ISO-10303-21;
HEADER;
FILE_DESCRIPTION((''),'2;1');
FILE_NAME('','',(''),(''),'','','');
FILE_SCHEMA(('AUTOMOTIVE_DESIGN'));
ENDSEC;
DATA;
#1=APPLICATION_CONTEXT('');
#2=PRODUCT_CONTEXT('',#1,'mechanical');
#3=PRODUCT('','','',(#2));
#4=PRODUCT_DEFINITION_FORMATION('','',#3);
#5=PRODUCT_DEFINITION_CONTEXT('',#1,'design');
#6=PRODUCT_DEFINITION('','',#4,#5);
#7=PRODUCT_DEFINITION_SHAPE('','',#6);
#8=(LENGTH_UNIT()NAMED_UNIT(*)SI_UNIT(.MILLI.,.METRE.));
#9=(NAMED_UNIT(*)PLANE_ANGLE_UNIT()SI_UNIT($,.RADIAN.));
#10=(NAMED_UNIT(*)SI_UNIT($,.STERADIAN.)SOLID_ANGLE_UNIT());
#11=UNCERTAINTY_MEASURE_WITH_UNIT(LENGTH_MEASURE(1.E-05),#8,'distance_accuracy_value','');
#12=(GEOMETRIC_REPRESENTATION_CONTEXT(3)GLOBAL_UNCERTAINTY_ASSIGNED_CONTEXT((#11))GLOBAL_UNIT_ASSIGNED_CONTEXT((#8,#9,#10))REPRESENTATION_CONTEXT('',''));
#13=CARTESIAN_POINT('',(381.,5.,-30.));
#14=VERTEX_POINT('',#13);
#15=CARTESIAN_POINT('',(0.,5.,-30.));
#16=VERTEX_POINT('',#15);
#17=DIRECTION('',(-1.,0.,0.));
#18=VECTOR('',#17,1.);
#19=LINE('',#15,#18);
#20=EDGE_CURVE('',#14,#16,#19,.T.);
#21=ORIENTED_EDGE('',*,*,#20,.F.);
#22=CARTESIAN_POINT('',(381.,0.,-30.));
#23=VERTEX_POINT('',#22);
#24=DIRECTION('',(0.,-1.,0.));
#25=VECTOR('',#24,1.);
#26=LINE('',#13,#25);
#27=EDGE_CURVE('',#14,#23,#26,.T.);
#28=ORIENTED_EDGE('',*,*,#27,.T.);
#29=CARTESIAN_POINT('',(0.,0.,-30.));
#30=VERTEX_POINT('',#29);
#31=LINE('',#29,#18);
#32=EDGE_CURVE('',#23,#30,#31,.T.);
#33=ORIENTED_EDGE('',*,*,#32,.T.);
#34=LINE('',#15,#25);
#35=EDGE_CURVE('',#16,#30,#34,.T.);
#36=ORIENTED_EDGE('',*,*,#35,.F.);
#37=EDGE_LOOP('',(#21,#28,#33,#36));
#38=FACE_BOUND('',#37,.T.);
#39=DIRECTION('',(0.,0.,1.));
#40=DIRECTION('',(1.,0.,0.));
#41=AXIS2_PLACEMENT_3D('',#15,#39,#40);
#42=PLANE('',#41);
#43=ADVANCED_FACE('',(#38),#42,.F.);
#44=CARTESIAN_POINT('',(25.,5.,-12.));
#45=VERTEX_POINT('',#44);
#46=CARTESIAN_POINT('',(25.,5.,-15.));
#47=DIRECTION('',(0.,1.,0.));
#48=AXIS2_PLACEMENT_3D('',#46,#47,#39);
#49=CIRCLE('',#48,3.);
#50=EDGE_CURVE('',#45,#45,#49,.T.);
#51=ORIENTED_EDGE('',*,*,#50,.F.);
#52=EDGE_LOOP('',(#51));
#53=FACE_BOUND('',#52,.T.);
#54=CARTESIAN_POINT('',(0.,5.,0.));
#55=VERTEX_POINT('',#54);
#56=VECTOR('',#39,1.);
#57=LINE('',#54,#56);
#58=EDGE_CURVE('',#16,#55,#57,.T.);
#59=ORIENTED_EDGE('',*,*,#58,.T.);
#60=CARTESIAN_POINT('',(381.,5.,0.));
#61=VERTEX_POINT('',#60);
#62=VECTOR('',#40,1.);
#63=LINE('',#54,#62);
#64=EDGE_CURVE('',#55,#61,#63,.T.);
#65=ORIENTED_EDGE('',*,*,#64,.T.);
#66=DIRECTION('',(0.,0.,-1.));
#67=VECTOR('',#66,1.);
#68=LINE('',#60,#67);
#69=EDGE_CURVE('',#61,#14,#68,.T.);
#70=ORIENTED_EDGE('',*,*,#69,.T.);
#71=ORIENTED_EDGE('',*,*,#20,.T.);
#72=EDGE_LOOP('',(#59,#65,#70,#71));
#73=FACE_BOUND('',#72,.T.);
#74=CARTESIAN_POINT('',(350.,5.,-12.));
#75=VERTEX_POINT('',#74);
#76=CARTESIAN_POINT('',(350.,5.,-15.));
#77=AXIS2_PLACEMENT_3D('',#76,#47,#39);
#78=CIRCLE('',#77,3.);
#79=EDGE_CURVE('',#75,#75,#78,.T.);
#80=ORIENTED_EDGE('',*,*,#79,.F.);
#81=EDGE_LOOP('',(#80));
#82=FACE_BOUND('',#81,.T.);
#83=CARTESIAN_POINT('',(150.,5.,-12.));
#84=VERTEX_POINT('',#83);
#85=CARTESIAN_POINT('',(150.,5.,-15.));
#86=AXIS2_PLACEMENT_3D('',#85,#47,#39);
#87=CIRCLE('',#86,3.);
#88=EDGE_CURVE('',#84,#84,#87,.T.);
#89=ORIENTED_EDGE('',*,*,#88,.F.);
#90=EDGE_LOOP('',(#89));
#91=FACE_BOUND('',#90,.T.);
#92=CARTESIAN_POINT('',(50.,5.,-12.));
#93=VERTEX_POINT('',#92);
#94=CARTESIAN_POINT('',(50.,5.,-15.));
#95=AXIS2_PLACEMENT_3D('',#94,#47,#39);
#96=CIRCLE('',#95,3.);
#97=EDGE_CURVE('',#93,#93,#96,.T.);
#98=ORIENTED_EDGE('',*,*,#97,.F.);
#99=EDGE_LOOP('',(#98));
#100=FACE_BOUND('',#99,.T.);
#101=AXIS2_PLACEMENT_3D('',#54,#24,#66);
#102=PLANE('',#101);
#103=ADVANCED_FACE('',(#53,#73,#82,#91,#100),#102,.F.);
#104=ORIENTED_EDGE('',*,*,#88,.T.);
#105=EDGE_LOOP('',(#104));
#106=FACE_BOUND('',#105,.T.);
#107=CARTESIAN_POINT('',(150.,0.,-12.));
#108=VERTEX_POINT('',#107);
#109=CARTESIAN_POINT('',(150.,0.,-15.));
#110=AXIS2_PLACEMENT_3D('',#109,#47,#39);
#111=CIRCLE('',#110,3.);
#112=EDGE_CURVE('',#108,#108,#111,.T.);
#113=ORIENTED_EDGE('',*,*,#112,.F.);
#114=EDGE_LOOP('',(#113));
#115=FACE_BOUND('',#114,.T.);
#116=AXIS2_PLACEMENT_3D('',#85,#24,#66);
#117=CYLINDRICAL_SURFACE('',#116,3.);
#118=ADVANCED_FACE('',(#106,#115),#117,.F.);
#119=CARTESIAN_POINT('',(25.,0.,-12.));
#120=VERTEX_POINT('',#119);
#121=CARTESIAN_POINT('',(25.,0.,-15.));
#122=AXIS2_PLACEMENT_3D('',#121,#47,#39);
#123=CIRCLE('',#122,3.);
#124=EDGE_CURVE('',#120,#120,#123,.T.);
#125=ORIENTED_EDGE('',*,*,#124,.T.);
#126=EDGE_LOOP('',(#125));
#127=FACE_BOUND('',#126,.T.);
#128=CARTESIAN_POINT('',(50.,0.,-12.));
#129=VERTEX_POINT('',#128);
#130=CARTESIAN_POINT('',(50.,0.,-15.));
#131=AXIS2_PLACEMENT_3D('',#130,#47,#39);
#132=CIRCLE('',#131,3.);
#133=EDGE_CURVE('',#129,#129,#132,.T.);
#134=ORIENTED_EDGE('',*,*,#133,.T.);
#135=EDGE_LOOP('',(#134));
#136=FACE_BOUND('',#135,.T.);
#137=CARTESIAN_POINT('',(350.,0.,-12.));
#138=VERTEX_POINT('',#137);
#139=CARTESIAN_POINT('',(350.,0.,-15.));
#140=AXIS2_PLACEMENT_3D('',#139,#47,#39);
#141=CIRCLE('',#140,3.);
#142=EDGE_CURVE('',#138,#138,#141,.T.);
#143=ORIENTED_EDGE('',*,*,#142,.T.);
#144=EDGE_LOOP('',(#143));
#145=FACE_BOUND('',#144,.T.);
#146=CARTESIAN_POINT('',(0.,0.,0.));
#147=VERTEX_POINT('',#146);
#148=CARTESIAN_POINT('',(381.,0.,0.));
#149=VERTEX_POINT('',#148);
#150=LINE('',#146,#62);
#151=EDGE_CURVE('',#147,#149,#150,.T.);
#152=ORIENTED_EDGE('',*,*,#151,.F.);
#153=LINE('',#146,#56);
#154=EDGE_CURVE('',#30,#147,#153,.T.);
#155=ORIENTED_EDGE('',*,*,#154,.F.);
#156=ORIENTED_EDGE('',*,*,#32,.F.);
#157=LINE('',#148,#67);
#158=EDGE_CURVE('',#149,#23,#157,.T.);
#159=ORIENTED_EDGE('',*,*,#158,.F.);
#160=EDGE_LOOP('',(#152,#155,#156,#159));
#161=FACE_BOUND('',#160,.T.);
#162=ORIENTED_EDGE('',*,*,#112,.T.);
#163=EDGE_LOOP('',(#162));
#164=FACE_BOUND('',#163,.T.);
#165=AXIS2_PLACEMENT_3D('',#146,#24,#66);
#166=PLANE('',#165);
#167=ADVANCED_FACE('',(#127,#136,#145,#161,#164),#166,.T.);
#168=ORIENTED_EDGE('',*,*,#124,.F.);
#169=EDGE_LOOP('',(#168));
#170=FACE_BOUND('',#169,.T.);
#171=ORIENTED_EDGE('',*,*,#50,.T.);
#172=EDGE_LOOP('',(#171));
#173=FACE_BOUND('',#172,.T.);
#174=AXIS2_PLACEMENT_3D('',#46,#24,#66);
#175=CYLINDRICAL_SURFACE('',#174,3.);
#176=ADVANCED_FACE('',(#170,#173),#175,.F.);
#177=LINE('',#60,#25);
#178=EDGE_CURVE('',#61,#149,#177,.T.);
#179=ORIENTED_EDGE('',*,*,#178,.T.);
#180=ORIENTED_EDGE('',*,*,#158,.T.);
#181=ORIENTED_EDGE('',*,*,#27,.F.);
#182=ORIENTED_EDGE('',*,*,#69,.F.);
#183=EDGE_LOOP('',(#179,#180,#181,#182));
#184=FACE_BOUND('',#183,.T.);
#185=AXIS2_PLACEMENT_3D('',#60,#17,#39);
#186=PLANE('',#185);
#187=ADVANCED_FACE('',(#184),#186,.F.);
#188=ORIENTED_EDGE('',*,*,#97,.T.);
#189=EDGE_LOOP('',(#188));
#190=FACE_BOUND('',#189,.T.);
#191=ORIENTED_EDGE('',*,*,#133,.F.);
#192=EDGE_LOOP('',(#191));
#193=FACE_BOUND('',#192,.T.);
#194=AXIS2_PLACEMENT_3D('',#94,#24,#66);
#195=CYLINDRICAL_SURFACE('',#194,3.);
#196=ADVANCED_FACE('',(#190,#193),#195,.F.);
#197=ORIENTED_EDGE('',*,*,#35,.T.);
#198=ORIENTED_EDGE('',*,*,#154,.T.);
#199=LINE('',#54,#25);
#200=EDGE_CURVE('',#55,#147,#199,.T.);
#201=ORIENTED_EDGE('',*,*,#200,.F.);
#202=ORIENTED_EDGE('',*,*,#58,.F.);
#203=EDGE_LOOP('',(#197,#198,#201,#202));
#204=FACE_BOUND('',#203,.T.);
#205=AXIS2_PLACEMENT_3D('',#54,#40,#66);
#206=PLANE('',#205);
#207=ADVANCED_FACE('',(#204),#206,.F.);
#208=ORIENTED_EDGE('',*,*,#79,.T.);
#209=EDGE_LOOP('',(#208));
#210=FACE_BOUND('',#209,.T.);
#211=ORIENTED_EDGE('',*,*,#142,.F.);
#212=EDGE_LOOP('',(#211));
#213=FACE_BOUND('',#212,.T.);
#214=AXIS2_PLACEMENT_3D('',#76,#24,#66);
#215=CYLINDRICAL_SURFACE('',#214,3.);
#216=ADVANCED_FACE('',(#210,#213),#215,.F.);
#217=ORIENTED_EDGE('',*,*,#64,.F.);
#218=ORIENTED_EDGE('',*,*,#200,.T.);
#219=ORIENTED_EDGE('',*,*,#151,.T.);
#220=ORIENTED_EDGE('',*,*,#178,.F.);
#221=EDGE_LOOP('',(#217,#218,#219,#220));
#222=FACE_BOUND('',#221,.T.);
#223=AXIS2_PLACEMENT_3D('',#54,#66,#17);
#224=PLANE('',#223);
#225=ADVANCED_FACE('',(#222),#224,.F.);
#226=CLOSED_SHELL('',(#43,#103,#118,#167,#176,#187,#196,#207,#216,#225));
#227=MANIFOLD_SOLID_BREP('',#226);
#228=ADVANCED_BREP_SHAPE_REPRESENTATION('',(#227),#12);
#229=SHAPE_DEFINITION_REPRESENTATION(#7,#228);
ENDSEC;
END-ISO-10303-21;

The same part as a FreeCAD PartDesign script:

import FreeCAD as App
import Part
import Sketcher

doc = App.newDocument("Part")
params = doc.addObject("Spreadsheet::Sheet", "Params")
for row, (alias, value) in enumerate([
    ("sketch1_diameter", "6 mm"),
    ("sketch1_width", "381 mm"),
    ("sketch1_height", "30 mm"),
    ("pad1_length", "5 mm"),
], start=1):
    params.set(f"A{row}", alias)
    params.set(f"B{row}", "=" + value)
    params.setAlias(f"B{row}", alias)

body = doc.addObject("PartDesign::Body", "Body")

# Sketch on XZ plane
sketch1 = body.newObject("Sketcher::SketchObject", "Sketch")
sketch1.AttachmentSupport = (doc.getObject("XZ_Plane"), [""])
sketch1.MapMode = "FlatFace"
sketch1.addGeometry([
    Part.LineSegment(App.Vector(0, -30, 0), App.Vector(0, 0, 0)),  # 0
    Part.LineSegment(App.Vector(0, 0, 0), App.Vector(381, 0, 0)),  # 1
    Part.LineSegment(App.Vector(381, 0, 0), App.Vector(381, -30, 0)),  # 2
    Part.LineSegment(App.Vector(381, -30, 0), App.Vector(0, -30, 0)),  # 3
    Part.Circle(App.Vector(25, -15, 0), App.Vector(0, 0, 1), 3),  # 4
    Part.Circle(App.Vector(50, -15, 0), App.Vector(0, 0, 1), 3),  # 5
    Part.Circle(App.Vector(150, -15, 0), App.Vector(0, 0, 1), 3),  # 6
    Part.Circle(App.Vector(350, -15, 0), App.Vector(0, 0, 1), 3),  # 7
], False)
sketch1.addConstraint([
    Sketcher.Constraint("Coincident", 0, 2, 1, 1),
    Sketcher.Constraint("Coincident", 1, 2, 2, 1),
    Sketcher.Constraint("Coincident", 2, 2, 3, 1),
    Sketcher.Constraint("Coincident", 3, 2, 0, 1),
    Sketcher.Constraint("Vertical", 0),
    Sketcher.Constraint("Horizontal", 1),
    Sketcher.Constraint("Vertical", 2),
    Sketcher.Constraint("Horizontal", 3),
    Sketcher.Constraint("Coincident", 0, 2, -1, 1),
    Sketcher.Constraint("Equal", 4, 5),
    Sketcher.Constraint("Equal", 5, 6),
    Sketcher.Constraint("Equal", 6, 7),
    Sketcher.Constraint("Horizontal", 4, 3, 5, 3),
    Sketcher.Constraint("Horizontal", 5, 3, 6, 3),
    Sketcher.Constraint("Horizontal", 6, 3, 7, 3),
    Sketcher.Constraint("Diameter", 4, 6.0),
    Sketcher.Constraint("DistanceX", 1, 1, 1, 2, 381.0),
    Sketcher.Constraint("DistanceY", 0, 1, 0, 2, 30.0),
    Sketcher.Constraint("DistanceX", -1, 1, 4, 3, 25.0),
    Sketcher.Constraint("DistanceY", 4, 3, -1, 1, 15.0),
    Sketcher.Constraint("DistanceX", -1, 1, 5, 3, 50.0),
    Sketcher.Constraint("DistanceX", -1, 1, 6, 3, 150.0),
    Sketcher.Constraint("DistanceX", -1, 1, 7, 3, 350.0),
])
sketch1.setExpression("Constraints[15]", "Params.sketch1_diameter")
sketch1.setExpression("Constraints[16]", "Params.sketch1_width")
sketch1.setExpression("Constraints[17]", "Params.sketch1_height")
pad1 = body.newObject("PartDesign::Pad", "Pad")
pad1.Profile = sketch1
pad1.setExpression("Length", "Params.pad1_length")
pad1.Reversed = True

doc.recompute()
